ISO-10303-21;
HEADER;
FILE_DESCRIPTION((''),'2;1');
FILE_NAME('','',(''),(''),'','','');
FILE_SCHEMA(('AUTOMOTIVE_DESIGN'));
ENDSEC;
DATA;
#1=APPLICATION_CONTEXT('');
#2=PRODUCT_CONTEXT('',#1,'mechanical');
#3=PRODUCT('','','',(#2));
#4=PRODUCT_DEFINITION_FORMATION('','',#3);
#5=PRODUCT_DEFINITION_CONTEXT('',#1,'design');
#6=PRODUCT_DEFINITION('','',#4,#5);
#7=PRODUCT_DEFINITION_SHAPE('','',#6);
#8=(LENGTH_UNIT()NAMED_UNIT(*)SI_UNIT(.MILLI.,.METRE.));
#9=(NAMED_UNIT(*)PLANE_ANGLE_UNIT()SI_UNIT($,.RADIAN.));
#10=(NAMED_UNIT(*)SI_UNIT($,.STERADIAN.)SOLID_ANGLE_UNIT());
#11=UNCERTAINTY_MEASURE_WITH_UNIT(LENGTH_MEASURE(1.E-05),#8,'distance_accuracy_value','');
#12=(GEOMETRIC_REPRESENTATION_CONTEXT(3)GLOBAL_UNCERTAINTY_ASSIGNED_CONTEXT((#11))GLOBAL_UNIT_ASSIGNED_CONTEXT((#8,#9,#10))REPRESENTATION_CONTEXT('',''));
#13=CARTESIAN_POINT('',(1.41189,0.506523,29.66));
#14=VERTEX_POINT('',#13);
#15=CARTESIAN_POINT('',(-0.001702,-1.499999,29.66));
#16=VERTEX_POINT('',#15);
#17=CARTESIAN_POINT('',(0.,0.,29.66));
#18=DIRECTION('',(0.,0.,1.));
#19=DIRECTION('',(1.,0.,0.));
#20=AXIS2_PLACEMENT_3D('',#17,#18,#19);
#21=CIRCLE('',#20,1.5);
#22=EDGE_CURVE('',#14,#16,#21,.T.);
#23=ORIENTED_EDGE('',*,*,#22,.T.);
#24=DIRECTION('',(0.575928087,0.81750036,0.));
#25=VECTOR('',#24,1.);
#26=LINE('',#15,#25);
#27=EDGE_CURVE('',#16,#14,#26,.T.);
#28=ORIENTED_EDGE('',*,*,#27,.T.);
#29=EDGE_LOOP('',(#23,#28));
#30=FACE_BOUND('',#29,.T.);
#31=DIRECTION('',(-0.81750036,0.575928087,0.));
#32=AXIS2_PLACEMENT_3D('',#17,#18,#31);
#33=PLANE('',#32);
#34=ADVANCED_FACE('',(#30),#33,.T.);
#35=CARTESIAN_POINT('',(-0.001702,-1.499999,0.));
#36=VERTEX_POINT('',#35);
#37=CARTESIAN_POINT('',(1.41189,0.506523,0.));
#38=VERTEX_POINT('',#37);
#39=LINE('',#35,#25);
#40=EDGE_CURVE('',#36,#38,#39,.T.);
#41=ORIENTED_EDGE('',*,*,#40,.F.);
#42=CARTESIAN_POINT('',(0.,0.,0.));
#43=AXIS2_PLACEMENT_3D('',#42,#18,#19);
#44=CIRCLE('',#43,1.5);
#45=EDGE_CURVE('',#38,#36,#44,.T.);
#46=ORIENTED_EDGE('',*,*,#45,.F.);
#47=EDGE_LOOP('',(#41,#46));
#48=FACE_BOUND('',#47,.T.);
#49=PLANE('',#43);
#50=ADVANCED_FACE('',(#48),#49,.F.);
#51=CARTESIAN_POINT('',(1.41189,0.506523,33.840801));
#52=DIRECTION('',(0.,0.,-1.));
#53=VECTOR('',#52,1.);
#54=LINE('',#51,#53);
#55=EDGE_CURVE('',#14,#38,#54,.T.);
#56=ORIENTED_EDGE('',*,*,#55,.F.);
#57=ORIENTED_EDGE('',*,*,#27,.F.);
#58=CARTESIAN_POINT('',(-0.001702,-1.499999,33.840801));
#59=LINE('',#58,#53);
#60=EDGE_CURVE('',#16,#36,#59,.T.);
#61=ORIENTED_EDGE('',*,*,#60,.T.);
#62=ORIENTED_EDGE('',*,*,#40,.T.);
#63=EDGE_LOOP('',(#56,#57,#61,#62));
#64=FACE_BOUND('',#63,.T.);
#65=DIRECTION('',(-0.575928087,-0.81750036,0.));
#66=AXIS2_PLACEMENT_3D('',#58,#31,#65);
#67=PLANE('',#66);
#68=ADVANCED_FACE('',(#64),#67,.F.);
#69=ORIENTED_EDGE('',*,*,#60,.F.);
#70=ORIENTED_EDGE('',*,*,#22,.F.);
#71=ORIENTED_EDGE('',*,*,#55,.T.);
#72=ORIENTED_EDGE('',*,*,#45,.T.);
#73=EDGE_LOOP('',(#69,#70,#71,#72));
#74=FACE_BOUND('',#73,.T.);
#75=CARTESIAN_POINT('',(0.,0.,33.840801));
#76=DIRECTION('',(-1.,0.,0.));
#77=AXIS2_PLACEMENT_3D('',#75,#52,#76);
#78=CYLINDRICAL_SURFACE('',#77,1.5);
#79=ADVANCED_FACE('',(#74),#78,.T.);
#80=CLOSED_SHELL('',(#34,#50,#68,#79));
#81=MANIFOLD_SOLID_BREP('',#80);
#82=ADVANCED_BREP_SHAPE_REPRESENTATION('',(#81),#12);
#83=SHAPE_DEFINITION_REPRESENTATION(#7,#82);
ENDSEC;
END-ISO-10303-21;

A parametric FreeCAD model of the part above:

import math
import FreeCAD as App
import Part
import Sketcher

V = App.Vector
Q = App.Units.Quantity

doc = App.newDocument("Part")
body = doc.addObject("PartDesign::Body", "Body")

sketch1 = body.newObject("Sketcher::SketchObject", "Sketch")
sketch1.AttachmentSupport = (doc.getObject("XY_Plane"), [""])
sketch1.MapMode = "FlatFace"
sketch1.addGeometry([
    Part.LineSegment(V(-0.001702, -1.499999, 0), V(1.41189, 0.506523, 0)),
    Part.ArcOfCircle(Part.Circle(V(0, 0, 0), V(0, 0, 1), 1.5), math.radians(19.735715), math.radians(269.93498)),
], False)
sketch1.addConstraint([
    Sketcher.Constraint("Coincident", 0, 1, 1, 2),
    Sketcher.Constraint("Coincident", 1, 1, 0, 2),
    Sketcher.Constraint("Coincident", 1, 3, -1, 1),
    Sketcher.Constraint("Radius", 1, Q("1.5 mm")),
    Sketcher.Constraint("Distance", 0, Q("2.45446 mm")),
    Sketcher.Constraint("DistanceX", -1, 1, 1, 1, Q("1.41189 mm")),
])
pad1 = body.newObject("PartDesign::Pad", "Pad")
pad1.Profile = sketch1
pad1.Length = 29.66

doc.recompute()
